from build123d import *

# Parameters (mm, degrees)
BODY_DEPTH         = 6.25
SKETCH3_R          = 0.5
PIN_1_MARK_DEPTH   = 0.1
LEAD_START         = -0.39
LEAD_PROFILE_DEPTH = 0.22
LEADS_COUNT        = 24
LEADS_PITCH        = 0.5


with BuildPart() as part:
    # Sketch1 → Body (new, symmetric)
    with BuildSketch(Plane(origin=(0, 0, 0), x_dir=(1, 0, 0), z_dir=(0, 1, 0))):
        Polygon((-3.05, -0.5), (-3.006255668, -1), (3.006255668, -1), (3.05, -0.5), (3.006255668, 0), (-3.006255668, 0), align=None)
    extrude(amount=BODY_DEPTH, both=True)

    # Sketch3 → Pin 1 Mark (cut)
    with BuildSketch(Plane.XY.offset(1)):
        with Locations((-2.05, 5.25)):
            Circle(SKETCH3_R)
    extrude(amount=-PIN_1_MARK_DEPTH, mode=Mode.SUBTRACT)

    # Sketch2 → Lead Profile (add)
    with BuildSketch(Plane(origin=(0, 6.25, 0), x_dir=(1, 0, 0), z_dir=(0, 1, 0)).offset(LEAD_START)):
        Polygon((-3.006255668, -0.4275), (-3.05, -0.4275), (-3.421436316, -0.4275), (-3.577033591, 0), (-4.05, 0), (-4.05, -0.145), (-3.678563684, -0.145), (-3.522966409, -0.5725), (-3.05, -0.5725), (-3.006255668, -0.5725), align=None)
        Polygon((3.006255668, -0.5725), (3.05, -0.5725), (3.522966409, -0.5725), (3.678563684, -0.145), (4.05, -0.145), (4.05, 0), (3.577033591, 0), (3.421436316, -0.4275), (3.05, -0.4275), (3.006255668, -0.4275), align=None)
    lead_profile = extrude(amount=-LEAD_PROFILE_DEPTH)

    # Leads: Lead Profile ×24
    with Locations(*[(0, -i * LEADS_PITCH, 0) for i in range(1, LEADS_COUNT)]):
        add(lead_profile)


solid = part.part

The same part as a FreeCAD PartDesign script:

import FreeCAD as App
import Part
import Sketcher

V = App.Vector
Q = App.Units.Quantity


def add_polygon(sketch, points):
    """Adds a closed chain of lines whose ends are joined by coincident constraints."""
    first, n = sketch.GeometryCount, len(points)
    for a, b in zip(points, points[1:] + points[:1]):
        sketch.addGeometry(Part.LineSegment(App.Vector(*a, 0), App.Vector(*b, 0)), False)
    for i in range(n):
        sketch.addConstraint(Sketcher.Constraint("Coincident", first + i, 2, first + (i + 1) % n, 1))

doc = App.newDocument("Part")
body = doc.addObject("PartDesign::Body", "Body")

sketch1 = doc.addObject("Sketcher::SketchObject", "Sketch")
body.addObject(sketch1)
sketch1.AttachmentSupport = (doc.XZ_Plane, [""])
sketch1.MapMode = "FlatFace"
add_polygon(sketch1, [(-3.05, 0.5), (-3.006256, 1), (3.006256, 1), (3.05, 0.5), (3.006256, 0), (-3.006256, 0)])
sketch1.addConstraint([
    Sketcher.Constraint("Horizontal", 1),
    Sketcher.Constraint("Horizontal", 4),
    Sketcher.Constraint("Symmetric", 3, 2, 4, 2, -1, 1),
    Sketcher.Constraint("Symmetric", 2, 2, 5, 2, -2),
    Sketcher.Constraint("Parallel", 0, 3),
    Sketcher.Constraint("Parallel", 2, 5),
    Sketcher.Constraint("Vertical", 1, 2, 3, 2),
    Sketcher.Constraint("Angle", 0, Q("85 deg")),
    Sketcher.Constraint("DistanceY", -1, 1, 0, 2, 1.0),
    Sketcher.Constraint("DistanceX", 5, 2, 2, 2, 6.1),
])
pad1 = doc.addObject("PartDesign::Pad", "Pad")
body.addObject(pad1)
pad1.Profile = sketch1
pad1.Length = 12.5
pad1.Midplane = True

sketch2 = doc.addObject("Sketcher::SketchObject", "Sketch001")
body.addObject(sketch2)
sketch2.AttachmentSupport = (doc.XY_Plane, [""])
sketch2.MapMode = "FlatFace"
sketch2.AttachmentOffset = App.Placement(V(0, 0, 1), App.Rotation())
sketch2.addGeometry(Part.Circle(V(-2.05, 5.25, 0), V(0, 0, 1), 0.5), False)
sketch2.addConstraint([
    Sketcher.Constraint("Diameter", 0, 1.0),
    Sketcher.Constraint("DistanceX", 0, 3, -1, 1, 2.05),
    Sketcher.Constraint("DistanceY", -1, 1, 0, 3, 5.25),
])
pocket1 = doc.addObject("PartDesign::Pocket", "Pocket")
body.addObject(pocket1)
pocket1.Profile = sketch2
pocket1.Length = 0.1

sketch3 = doc.addObject("Sketcher::SketchObject", "Sketch002")
body.addObject(sketch3)
sketch3.AttachmentSupport = (doc.XZ_Plane, [""])
sketch3.MapMode = "FlatFace"
sketch3.AttachmentOffset = App.Placement(V(0, 0, -5.86), App.Rotation())
add_polygon(sketch3, [(-3.006256, 0.4275), (-3.421436, 0.4275), (-3.577034, 0), (-4.05, 0), (-4.05, 0.145), (-3.678564, 0.145), (-3.522966, 0.5725), (-3.006256, 0.5725)])
add_polygon(sketch3, [(3.006256, 0.5725), (3.522966, 0.5725), (3.678564, 0.145), (4.05, 0.145), (4.05, 0), (3.577034, 0), (3.421436, 0.4275), (3.006256, 0.4275)])
sketch3.addConstraint([
    Sketcher.Constraint("Horizontal", 0),
    Sketcher.Constraint("Horizontal", 2),
    Sketcher.Constraint("Vertical", 3),
    Sketcher.Constraint("Horizontal", 4),
    Sketcher.Constraint("Horizontal", 6),
    Sketcher.Constraint("Vertical", 7),
    Sketcher.Constraint("Horizontal", 8),
    Sketcher.Constraint("Horizontal", 10),
    Sketcher.Constraint("Vertical", 11),
    Sketcher.Constraint("Horizontal", 12),
    Sketcher.Constraint("Horizontal", 14),
    Sketcher.Constraint("Vertical", 15),
    Sketcher.Constraint("Symmetric", 2, 2, 11, 2, -1, 1),
    Sketcher.Constraint("Symmetric", 5, 2, 8, 2, -2),
    Sketcher.Constraint("Symmetric", 4, 2, 9, 2, -2),
    Sketcher.Constraint("Symmetric", 1, 2, 12, 2, -2),
    Sketcher.Constraint("Symmetric", 0, 2, 13, 2, -2),
    Sketcher.Constraint("Parallel", 1, 5),
    Sketcher.Constraint("Equal", 6, 8),
    Sketcher.Constraint("Equal", 3, 7),
    Sketcher.Constraint("Angle", 1, Q("-110 deg")),
    Sketcher.Constraint("DistanceX", 1, 2, 8, 2, 7.1),
    Sketcher.Constraint("DistanceY", 3, 1, 3, 2, 0.145),
    Sketcher.Constraint("DistanceX", 2, 2, -1, 1, 4.05),
    Sketcher.Constraint("DistanceX", 0, 2, 0, 1, 0.415181),
    Sketcher.Constraint("DistanceX", 6, 1, 6, 2, 0.516711),
    Sketcher.Constraint("DistanceY", -1, 1, 0, 2, 0.4275),
])
pad2 = doc.addObject("PartDesign::Pad", "Pad001")
body.addObject(pad2)
pad2.Profile = sketch3
pad2.Length = 0.22
doc.recompute()

linearpattern = doc.addObject("PartDesign::LinearPattern", "LinearPattern")
body.addObject(linearpattern)
linearpattern.Originals = [pad2]
linearpattern.Direction = (doc.Y_Axis, [""])
linearpattern.Mode = "offset"
linearpattern.Offset = 0.5
linearpattern.Occurrences = 24
linearpattern.Reversed = True
body.Tip = linearpattern

doc.recompute()
